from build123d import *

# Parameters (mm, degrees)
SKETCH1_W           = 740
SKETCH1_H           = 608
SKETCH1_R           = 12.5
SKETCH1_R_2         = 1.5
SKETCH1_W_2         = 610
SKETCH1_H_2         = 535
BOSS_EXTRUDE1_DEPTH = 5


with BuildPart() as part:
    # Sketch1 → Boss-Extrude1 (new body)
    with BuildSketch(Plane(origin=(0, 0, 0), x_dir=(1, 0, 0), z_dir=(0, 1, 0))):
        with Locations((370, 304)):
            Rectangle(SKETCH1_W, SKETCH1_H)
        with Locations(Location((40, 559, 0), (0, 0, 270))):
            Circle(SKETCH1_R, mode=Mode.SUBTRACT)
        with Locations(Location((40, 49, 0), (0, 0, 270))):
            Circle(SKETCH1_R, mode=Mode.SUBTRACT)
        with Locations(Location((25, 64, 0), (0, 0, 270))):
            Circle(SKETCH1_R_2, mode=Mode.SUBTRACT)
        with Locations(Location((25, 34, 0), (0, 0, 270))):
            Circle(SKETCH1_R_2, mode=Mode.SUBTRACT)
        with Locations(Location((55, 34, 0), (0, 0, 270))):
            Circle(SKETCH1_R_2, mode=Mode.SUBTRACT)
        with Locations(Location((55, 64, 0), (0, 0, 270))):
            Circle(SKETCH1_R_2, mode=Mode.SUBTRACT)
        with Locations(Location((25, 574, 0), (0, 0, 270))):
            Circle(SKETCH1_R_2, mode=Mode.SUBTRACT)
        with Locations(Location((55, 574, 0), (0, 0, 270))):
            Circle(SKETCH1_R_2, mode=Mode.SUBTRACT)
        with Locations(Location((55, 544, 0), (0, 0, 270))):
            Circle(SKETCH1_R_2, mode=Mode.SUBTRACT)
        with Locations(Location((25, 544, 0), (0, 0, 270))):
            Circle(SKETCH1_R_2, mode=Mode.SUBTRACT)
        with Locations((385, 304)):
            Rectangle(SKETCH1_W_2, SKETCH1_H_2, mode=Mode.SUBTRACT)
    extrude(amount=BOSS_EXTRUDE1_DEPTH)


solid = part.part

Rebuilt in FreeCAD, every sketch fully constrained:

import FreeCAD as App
import Part
import Sketcher

V = App.Vector
Q = App.Units.Quantity


def add_polygon(sketch, points):
    """Adds a closed chain of lines whose ends are joined by coincident constraints."""
    first, n = sketch.GeometryCount, len(points)
    for a, b in zip(points, points[1:] + points[:1]):
        sketch.addGeometry(Part.LineSegment(App.Vector(*a, 0), App.Vector(*b, 0)), False)
    for i in range(n):
        sketch.addConstraint(Sketcher.Constraint("Coincident", first + i, 2, first + (i + 1) % n, 1))

doc = App.newDocument("Part")
body = doc.addObject("PartDesign::Body", "Body")

sketch1 = doc.addObject("Sketcher::SketchObject", "Sketch")
body.addObject(sketch1)
sketch1.AttachmentSupport = (doc.XZ_Plane, [""])
sketch1.MapMode = "FlatFace"
add_polygon(sketch1, [(0, -608), (0, 0), (740, 0), (740, -608)])
sketch1.addGeometry(Part.Circle(V(25, -34, 0), V(0, 0, 1), 1.5), False)
sketch1.addGeometry(Part.Circle(V(40, -49, 0), V(0, 0, 1), 12.5), False)
sketch1.addGeometry(Part.Circle(V(55, -34, 0), V(0, 0, 1), 1.5), False)
sketch1.addGeometry(Part.Circle(V(25, -64, 0), V(0, 0, 1), 1.5), False)
sketch1.addGeometry(Part.Circle(V(55, -64, 0), V(0, 0, 1), 1.5), False)
sketch1.addGeometry(Part.Circle(V(25, -544, 0), V(0, 0, 1), 1.5), False)
sketch1.addGeometry(Part.Circle(V(55, -544, 0), V(0, 0, 1), 1.5), False)
sketch1.addGeometry(Part.Circle(V(40, -559, 0), V(0, 0, 1), 12.5), False)
sketch1.addGeometry(Part.Circle(V(25, -574, 0), V(0, 0, 1), 1.5), False)
sketch1.addGeometry(Part.Circle(V(55, -574, 0), V(0, 0, 1), 1.5), False)
add_polygon(sketch1, [(690, -36.5), (80, -36.5), (80, -571.5), (690, -571.5)])
sketch1.addConstraint([
    Sketcher.Constraint("Vertical", 0),
    Sketcher.Constraint("Horizontal", 1),
    Sketcher.Constraint("Vertical", 2),
    Sketcher.Constraint("Horizontal", 3),
    Sketcher.Constraint("Horizontal", 14),
    Sketcher.Constraint("Vertical", 15),
    Sketcher.Constraint("Horizontal", 16),
    Sketcher.Constraint("Vertical", 17),
    Sketcher.Constraint("Coincident", 0, 2, -1, 1),
    Sketcher.Constraint("Equal", 4, 6),
    Sketcher.Constraint("Equal", 6, 7),
    Sketcher.Constraint("Equal", 7, 8),
    Sketcher.Constraint("Equal", 8, 9),
    Sketcher.Constraint("Equal", 9, 10),
    Sketcher.Constraint("Equal", 5, 11),
    Sketcher.Constraint("Equal", 10, 12),
    Sketcher.Constraint("Equal", 12, 13),
    Sketcher.Constraint("Horizontal", 4, 3, 6, 3),
    Sketcher.Constraint("Horizontal", 7, 3, 8, 3),
    Sketcher.Constraint("Horizontal", 9, 3, 10, 3),
    Sketcher.Constraint("Horizontal", 12, 3, 13, 3),
    Sketcher.Constraint("Vertical", 4, 3, 7, 3),
    Sketcher.Constraint("Vertical", 6, 3, 8, 3),
    Sketcher.Constraint("Vertical", 7, 3, 9, 3),
    Sketcher.Constraint("Vertical", 8, 3, 10, 3),
    Sketcher.Constraint("Vertical", 5, 3, 11, 3),
    Sketcher.Constraint("Vertical", 9, 3, 12, 3),
    Sketcher.Constraint("Vertical", 10, 3, 13, 3),
    Sketcher.Constraint("Diameter", 4, Q("3 mm")),
    Sketcher.Constraint("Diameter", 5, Q("25 mm")),
    Sketcher.Constraint("DistanceX", 1, 1, 1, 2, Q("740 mm")),
    Sketcher.Constraint("DistanceX", 14, 2, 14, 1, Q("610 mm")),
    Sketcher.Constraint("DistanceY", 0, 1, 0, 2, Q("608 mm")),
    Sketcher.Constraint("DistanceY", 15, 2, 15, 1, Q("535 mm")),
    Sketcher.Constraint("DistanceX", -1, 1, 4, 3, Q("25 mm")),
    Sketcher.Constraint("DistanceY", 4, 3, -1, 1, Q("34 mm")),
    Sketcher.Constraint("DistanceX", -1, 1, 5, 3, Q("40 mm")),
    Sketcher.Constraint("DistanceY", 5, 3, -1, 1, Q("49 mm")),
    Sketcher.Constraint("DistanceX", -1, 1, 6, 3, Q("55 mm")),
    Sketcher.Constraint("DistanceY", 7, 3, -1, 1, Q("64 mm")),
    Sketcher.Constraint("DistanceY", 9, 3, -1, 1, Q("544 mm")),
    Sketcher.Constraint("DistanceY", 11, 3, -1, 1, Q("559 mm")),
    Sketcher.Constraint("DistanceY", 12, 3, -1, 1, Q("574 mm")),
    Sketcher.Constraint("DistanceX", -1, 1, 14, 2, Q("80 mm")),
    Sketcher.Constraint("DistanceY", 14, 2, -1, 1, Q("36.5 mm")),
])
pad1 = doc.addObject("PartDesign::Pad", "Pad")
body.addObject(pad1)
pad1.Profile = sketch1
pad1.Length = 5
pad1.Reversed = True

doc.recompute()
